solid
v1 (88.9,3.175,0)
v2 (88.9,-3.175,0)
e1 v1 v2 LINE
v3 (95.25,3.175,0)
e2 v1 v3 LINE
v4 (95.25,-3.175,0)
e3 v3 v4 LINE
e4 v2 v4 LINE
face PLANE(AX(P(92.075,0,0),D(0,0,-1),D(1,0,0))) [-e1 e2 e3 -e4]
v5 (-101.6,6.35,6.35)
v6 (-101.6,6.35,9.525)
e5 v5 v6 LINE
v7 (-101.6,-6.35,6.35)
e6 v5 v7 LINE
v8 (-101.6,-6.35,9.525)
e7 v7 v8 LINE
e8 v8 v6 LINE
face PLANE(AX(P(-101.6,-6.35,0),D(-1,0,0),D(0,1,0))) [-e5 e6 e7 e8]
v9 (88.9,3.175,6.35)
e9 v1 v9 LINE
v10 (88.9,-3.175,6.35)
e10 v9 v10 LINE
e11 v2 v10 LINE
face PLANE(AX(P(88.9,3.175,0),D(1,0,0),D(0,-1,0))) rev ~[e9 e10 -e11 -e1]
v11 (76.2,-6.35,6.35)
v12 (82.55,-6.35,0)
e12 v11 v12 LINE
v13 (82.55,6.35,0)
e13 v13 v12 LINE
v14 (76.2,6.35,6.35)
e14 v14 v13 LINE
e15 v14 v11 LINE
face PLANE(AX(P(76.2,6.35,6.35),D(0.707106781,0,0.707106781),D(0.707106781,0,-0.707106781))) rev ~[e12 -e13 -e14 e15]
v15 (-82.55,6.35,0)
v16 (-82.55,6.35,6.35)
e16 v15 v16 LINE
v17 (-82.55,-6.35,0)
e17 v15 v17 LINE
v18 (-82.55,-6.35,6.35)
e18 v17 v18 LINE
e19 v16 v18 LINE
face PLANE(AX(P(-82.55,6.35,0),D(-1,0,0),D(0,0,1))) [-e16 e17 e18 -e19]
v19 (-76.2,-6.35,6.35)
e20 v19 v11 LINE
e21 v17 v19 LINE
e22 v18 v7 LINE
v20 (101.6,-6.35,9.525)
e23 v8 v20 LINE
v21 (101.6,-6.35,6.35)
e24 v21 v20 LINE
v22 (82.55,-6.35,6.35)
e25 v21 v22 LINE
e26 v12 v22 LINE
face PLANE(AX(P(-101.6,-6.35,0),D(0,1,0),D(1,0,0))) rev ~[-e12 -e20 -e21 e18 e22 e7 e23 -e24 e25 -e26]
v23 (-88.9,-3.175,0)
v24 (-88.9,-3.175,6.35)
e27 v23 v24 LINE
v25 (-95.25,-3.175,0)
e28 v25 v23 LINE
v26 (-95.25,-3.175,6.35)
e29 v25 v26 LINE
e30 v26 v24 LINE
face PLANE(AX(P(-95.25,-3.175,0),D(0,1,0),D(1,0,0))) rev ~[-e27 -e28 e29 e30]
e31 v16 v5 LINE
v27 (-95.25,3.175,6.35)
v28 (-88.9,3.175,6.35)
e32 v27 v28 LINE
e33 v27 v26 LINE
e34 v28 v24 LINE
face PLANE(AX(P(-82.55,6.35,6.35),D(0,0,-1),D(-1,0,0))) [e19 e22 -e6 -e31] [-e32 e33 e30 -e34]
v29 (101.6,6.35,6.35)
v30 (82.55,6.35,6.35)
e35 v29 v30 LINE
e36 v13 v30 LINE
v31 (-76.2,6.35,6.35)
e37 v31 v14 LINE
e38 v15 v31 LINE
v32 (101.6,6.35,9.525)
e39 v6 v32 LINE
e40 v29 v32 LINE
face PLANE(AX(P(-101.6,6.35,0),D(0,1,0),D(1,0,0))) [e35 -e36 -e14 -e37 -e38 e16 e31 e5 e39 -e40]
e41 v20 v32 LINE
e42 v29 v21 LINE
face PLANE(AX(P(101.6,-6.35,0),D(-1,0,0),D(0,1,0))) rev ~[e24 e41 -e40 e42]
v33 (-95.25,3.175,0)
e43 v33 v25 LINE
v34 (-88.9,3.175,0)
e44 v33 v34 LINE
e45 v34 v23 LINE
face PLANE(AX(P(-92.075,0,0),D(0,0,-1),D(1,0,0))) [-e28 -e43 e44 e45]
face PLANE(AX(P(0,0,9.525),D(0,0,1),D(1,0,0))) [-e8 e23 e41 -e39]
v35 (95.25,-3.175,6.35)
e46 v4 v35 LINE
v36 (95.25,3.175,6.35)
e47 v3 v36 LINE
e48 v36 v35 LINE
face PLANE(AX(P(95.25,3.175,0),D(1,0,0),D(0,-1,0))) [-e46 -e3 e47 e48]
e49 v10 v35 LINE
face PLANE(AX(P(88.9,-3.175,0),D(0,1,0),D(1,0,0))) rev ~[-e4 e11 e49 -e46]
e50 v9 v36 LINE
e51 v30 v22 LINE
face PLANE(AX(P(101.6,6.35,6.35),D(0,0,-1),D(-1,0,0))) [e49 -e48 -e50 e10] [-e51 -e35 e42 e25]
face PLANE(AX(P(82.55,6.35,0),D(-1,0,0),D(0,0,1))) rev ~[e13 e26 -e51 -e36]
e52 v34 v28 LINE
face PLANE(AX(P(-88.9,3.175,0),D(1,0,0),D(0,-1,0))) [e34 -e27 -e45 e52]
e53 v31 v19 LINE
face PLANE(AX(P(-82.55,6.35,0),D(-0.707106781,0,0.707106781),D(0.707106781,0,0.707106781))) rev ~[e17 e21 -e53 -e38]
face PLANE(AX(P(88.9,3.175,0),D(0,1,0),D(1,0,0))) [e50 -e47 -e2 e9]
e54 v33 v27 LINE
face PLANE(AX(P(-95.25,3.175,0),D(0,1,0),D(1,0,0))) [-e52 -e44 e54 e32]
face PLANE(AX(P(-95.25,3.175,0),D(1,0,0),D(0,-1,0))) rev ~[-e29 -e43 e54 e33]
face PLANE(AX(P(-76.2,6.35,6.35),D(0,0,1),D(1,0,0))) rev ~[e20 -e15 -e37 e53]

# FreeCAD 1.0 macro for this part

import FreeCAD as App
import Part
import Sketcher
Q = App.Units.Quantity

doc = App.newDocument("Part")
body = doc.addObject("PartDesign::Body", "Body")

sketch1 = doc.addObject("Sketcher::SketchObject", "Sketch")
body.addObject(sketch1)
sketch1.AttachmentSupport = (doc.XY_Plane, [""])
sketch1.MapMode = "FlatFace"
sketch1.addGeometry(Part.LineSegment(App.Vector(-102, 6, 0), App.Vector(-102, -6, 0)), False)
sketch1.addGeometry(Part.LineSegment(App.Vector(-102, -6, 0), App.Vector(102, -6, 0)), False)
sketch1.addGeometry(Part.LineSegment(App.Vector(102, -6, 0), App.Vector(102, 6, 0)), False)
sketch1.addGeometry(Part.LineSegment(App.Vector(102, 6, 0), App.Vector(-102, 6, 0)), False)
sketch1.addConstraint(Sketcher.Constraint("Coincident", 0, 2, 1, 1))
sketch1.addConstraint(Sketcher.Constraint("Coincident", 1, 2, 2, 1))
sketch1.addConstraint(Sketcher.Constraint("Coincident", 2, 2, 3, 1))
sketch1.addConstraint(Sketcher.Constraint("Coincident", 3, 2, 0, 1))
sketch1.addConstraint(Sketcher.Constraint("Vertical", 0))
sketch1.addConstraint(Sketcher.Constraint("Horizontal", 1))
sketch1.addConstraint(Sketcher.Constraint("Vertical", 2))
sketch1.addConstraint(Sketcher.Constraint("Horizontal", 3))
sketch1.addConstraint(Sketcher.Constraint("Symmetric", 0, 2, 2, 2, -1, 1))
sketch1.addConstraint(Sketcher.Constraint("DistanceX", 1, 1, 1, 2, Q("8 in")))
sketch1.addConstraint(Sketcher.Constraint("DistanceY", 0, 2, 0, 1, Q("0.5 in")))
pad1 = doc.addObject("PartDesign::Pad", "Pad")
body.addObject(pad1)
pad1.Profile = sketch1
pad1.Length = Q("0.375 in")

sketch2 = doc.addObject("Sketcher::SketchObject", "Sketch001")
body.addObject(sketch2)
sketch2.AttachmentSupport = (doc.XZ_Plane, [""])
sketch2.MapMode = "FlatFace"
sketch2.AttachmentOffset = App.Placement(App.Vector(0, 0, -0.25 * 25.4), App.Rotation())
sketch2.addGeometry(Part.LineSegment(App.Vector(102, 6, 0), App.Vector(102, 0, 0)), False)
sketch2.addGeometry(Part.LineSegment(App.Vector(102, 0, 0), App.Vector(83, 0, 0)), False)
sketch2.addGeometry(Part.LineSegment(App.Vector(83, 0, 0), App.Vector(83, 6, 0)), False)
sketch2.addGeometry(Part.LineSegment(App.Vector(83, 6, 0), App.Vector(102, 6, 0)), False)
sketch2.addGeometry(Part.LineSegment(App.Vector(-83, 6, 0), App.Vector(-83, 0, 0)), False)
sketch2.addGeometry(Part.LineSegment(App.Vector(-83, 0, 0), App.Vector(-102, 0, 0)), False)
sketch2.addGeometry(Part.LineSegment(App.Vector(-102, 0, 0), App.Vector(-102, 6, 0)), False)
sketch2.addGeometry(Part.LineSegment(App.Vector(-102, 6, 0), App.Vector(-83, 6, 0)), False)
sketch2.addConstraint(Sketcher.Constraint("Coincident", 0, 2, 1, 1))
sketch2.addConstraint(Sketcher.Constraint("Coincident", 1, 2, 2, 1))
sketch2.addConstraint(Sketcher.Constraint("Coincident", 2, 2, 3, 1))
sketch2.addConstraint(Sketcher.Constraint("Coincident", 3, 2, 0, 1))
sketch2.addConstraint(Sketcher.Constraint("Coincident", 4, 2, 5, 1))
sketch2.addConstraint(Sketcher.Constraint("Coincident", 5, 2, 6, 1))
sketch2.addConstraint(Sketcher.Constraint("Coincident", 6, 2, 7, 1))
sketch2.addConstraint(Sketcher.Constraint("Coincident", 7, 2, 4, 1))
sketch2.addConstraint(Sketcher.Constraint("Vertical", 0))
sketch2.addConstraint(Sketcher.Constraint("Horizontal", 1))
sketch2.addConstraint(Sketcher.Constraint("Vertical", 2))
sketch2.addConstraint(Sketcher.Constraint("Horizontal", 3))
sketch2.addConstraint(Sketcher.Constraint("Vertical", 4))
sketch2.addConstraint(Sketcher.Constraint("Horizontal", 5))
sketch2.addConstraint(Sketcher.Constraint("Vertical", 6))
sketch2.addConstraint(Sketcher.Constraint("Horizontal", 7))
sketch2.addConstraint(Sketcher.Constraint("Symmetric", 1, 2, 4, 2, -1, 1))
sketch2.addConstraint(Sketcher.Constraint("Symmetric", 0, 2, 5, 2, -2))
sketch2.addConstraint(Sketcher.Constraint("Horizontal", 3, 2, 6, 2))
sketch2.addConstraint(Sketcher.Constraint("DistanceX", -1, 1, 0, 2, Q("4 in")))
sketch2.addConstraint(Sketcher.Constraint("DistanceX", 1, 2, 1, 1, Q("0.75 in")))
sketch2.addConstraint(Sketcher.Constraint("DistanceY", 0, 2, 0, 1, Q("0.25 in")))
pocket1 = doc.addObject("PartDesign::Pocket", "Pocket")
body.addObject(pocket1)
pocket1.Profile = sketch2
pocket1.Length = Q("1 in")
pocket1.Reversed = True

sketch3 = doc.addObject("Sketcher::SketchObject", "Sketch002")
body.addObject(sketch3)
sketch3.AttachmentSupport = (doc.XY_Plane, [""])
sketch3.MapMode = "FlatFace"
sketch3.addGeometry(Part.LineSegment(App.Vector(-95, -3, 0), App.Vector(-95, 3, 0)), False)
sketch3.addGeometry(Part.LineSegment(App.Vector(-95, 3, 0), App.Vector(-89, 3, 0)), False)
sketch3.addGeometry(Part.LineSegment(App.Vector(-89, 3, 0), App.Vector(-89, -3, 0)), False)
sketch3.addGeometry(Part.LineSegment(App.Vector(-89, -3, 0), App.Vector(-95, -3, 0)), False)
sketch3.addGeometry(Part.LineSegment(App.Vector(89, -3, 0), App.Vector(89, 3, 0)), False)
sketch3.addGeometry(Part.LineSegment(App.Vector(89, 3, 0), App.Vector(95, 3, 0)), False)
sketch3.addGeometry(Part.LineSegment(App.Vector(95, 3, 0), App.Vector(95, -3, 0)), False)
sketch3.addGeometry(Part.LineSegment(App.Vector(95, -3, 0), App.Vector(89, -3, 0)), False)
sketch3.addConstraint(Sketcher.Constraint("Coincident", 0, 2, 1, 1))
sketch3.addConstraint(Sketcher.Constraint("Coincident", 1, 2, 2, 1))
sketch3.addConstraint(Sketcher.Constraint("Coincident", 2, 2, 3, 1))
sketch3.addConstraint(Sketcher.Constraint("Coincident", 3, 2, 0, 1))
sketch3.addConstraint(Sketcher.Constraint("Coincident", 4, 2, 5, 1))
sketch3.addConstraint(Sketcher.Constraint("Coincident", 5, 2, 6, 1))
sketch3.addConstraint(Sketcher.Constraint("Coincident", 6, 2, 7, 1))
sketch3.addConstraint(Sketcher.Constraint("Coincident", 7, 2, 4, 1))
sketch3.addConstraint(Sketcher.Constraint("Vertical", 0))
sketch3.addConstraint(Sketcher.Constraint("Horizontal", 1))
sketch3.addConstraint(Sketcher.Constraint("Vertical", 2))
sketch3.addConstraint(Sketcher.Constraint("Horizontal", 3))
sketch3.addConstraint(Sketcher.Constraint("Vertical", 4))
sketch3.addConstraint(Sketcher.Constraint("Horizontal", 5))
sketch3.addConstraint(Sketcher.Constraint("Vertical", 6))
sketch3.addConstraint(Sketcher.Constraint("Horizontal", 7))
sketch3.addConstraint(Sketcher.Constraint("Symmetric", 2, 2, 4, 2, -1, 1))
sketch3.addConstraint(Sketcher.Constraint("Symmetric", 0, 2, 6, 2, -1, 1))
sketch3.addConstraint(Sketcher.Constraint("Horizontal", 1, 2, 4, 2))
sketch3.addConstraint(Sketcher.Constraint("Equal", 7, 0))
sketch3.addConstraint(Sketcher.Constraint("DistanceX", 1, 2, 4, 2, Q("7 in")))
sketch3.addConstraint(Sketcher.Constraint("DistanceX", 1, 1, 1, 2, Q("0.25 in")))
pad2 = doc.addObject("PartDesign::Pad", "Pad001")
body.addObject(pad2)
pad2.Profile = sketch3
pad2.Length = Q("0.25 in")

sketch4 = doc.addObject("Sketcher::SketchObject", "Sketch003")
body.addObject(sketch4)
sketch4.AttachmentSupport = (doc.XZ_Plane, [""])
sketch4.MapMode = "FlatFace"
sketch4.AttachmentOffset = App.Placement(App.Vector(0, 0, -0.25 * 25.4), App.Rotation())
sketch4.addGeometry(Part.LineSegment(App.Vector(83, 0, 0), App.Vector(-83, 0, 0)), False)
sketch4.addGeometry(Part.LineSegment(App.Vector(-83, 0, 0), App.Vector(-76, 6, 0)), False)
sketch4.addGeometry(Part.LineSegment(App.Vector(-76, 6, 0), App.Vector(76, 6, 0)), False)
sketch4.addGeometry(Part.LineSegment(App.Vector(76, 6, 0), App.Vector(83, 0, 0)), False)
sketch4.addConstraint(Sketcher.Constraint("Coincident", 0, 2, 1, 1))
sketch4.addConstraint(Sketcher.Constraint("Coincident", 1, 2, 2, 1))
sketch4.addConstraint(Sketcher.Constraint("Coincident", 2, 2, 3, 1))
sketch4.addConstraint(Sketcher.Constraint("Coincident", 3, 2, 0, 1))
sketch4.addConstraint(Sketcher.Constraint("Horizontal", 0))
sketch4.addConstraint(Sketcher.Constraint("Horizontal", 2))
sketch4.addConstraint(Sketcher.Constraint("Symmetric", 0, 2, 3, 2, -1, 1))
sketch4.addConstraint(Sketcher.Constraint("Perpendicular", 1, 3))
sketch4.addConstraint(Sketcher.Constraint("Equal", 1, 3))
sketch4.addConstraint(Sketcher.Constraint("DistanceX", 2, 1, 2, 2, Q("6 in")))
sketch4.addConstraint(Sketcher.Constraint("DistanceX", 0, 2, 0, 1, Q("6.5 in")))
pocket2 = doc.addObject("PartDesign::Pocket", "Pocket001")
body.addObject(pocket2)
pocket2.Profile = sketch4
pocket2.Length = Q("1 in")
pocket2.Reversed = True

doc.recompute()
